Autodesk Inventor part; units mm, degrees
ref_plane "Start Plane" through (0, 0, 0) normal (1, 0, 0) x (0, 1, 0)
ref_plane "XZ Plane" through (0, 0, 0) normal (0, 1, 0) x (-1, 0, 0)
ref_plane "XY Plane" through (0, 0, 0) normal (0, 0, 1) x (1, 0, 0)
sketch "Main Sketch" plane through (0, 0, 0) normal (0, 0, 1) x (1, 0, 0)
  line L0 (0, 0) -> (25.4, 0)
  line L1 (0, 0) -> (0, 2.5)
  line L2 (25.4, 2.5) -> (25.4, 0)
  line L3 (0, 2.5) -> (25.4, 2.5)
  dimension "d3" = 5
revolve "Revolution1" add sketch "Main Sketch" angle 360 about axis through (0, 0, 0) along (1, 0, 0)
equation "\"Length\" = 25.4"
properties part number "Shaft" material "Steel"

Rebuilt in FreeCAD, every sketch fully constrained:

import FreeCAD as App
import Part
import Sketcher
from FreeCAD import Vector
Q = App.Units.Quantity

doc = App.newDocument("Part")
body = doc.addObject("PartDesign::Body", "Body")

# Sketch on XY plane
sketch1 = doc.addObject("Sketcher::SketchObject", "Sketch")
body.addObject(sketch1)
sketch1.AttachmentSupport = (doc.XY_Plane, [""])
sketch1.MapMode = "FlatFace"
sketch1.addGeometry([
    Part.LineSegment(Vector(0, 2.5, 0), Vector(0, 0, 0)),
    Part.LineSegment(Vector(0, 0, 0), Vector(25.4, 0, 0)),
    Part.LineSegment(Vector(25.4, 0, 0), Vector(25.4, 2.5, 0)),
    Part.LineSegment(Vector(25.4, 2.5, 0), Vector(0, 2.5, 0)),
], False)
sketch1.addConstraint([
    Sketcher.Constraint("Coincident", 0, 2, 1, 1),
    Sketcher.Constraint("Coincident", 1, 2, 2, 1),
    Sketcher.Constraint("Coincident", 2, 2, 3, 1),
    Sketcher.Constraint("Coincident", 3, 2, 0, 1),
    Sketcher.Constraint("Vertical", 0),
    Sketcher.Constraint("Horizontal", 1),
    Sketcher.Constraint("Vertical", 2),
    Sketcher.Constraint("Horizontal", 3),
    Sketcher.Constraint("Coincident", 0, 2, -1, 1),
    Sketcher.Constraint("DistanceX", 1, 1, 1, 2, Q("25.4 mm")),
    Sketcher.Constraint("DistanceY", 0, 2, 0, 1, Q("2.5 mm")),
])
revolution = doc.addObject("PartDesign::Revolution", "Revolution")
body.addObject(revolution)
revolution.Profile = sketch1
revolution.ReferenceAxis = (sketch1, ["H_Axis"])
revolution.Angle = 360

doc.recompute()
